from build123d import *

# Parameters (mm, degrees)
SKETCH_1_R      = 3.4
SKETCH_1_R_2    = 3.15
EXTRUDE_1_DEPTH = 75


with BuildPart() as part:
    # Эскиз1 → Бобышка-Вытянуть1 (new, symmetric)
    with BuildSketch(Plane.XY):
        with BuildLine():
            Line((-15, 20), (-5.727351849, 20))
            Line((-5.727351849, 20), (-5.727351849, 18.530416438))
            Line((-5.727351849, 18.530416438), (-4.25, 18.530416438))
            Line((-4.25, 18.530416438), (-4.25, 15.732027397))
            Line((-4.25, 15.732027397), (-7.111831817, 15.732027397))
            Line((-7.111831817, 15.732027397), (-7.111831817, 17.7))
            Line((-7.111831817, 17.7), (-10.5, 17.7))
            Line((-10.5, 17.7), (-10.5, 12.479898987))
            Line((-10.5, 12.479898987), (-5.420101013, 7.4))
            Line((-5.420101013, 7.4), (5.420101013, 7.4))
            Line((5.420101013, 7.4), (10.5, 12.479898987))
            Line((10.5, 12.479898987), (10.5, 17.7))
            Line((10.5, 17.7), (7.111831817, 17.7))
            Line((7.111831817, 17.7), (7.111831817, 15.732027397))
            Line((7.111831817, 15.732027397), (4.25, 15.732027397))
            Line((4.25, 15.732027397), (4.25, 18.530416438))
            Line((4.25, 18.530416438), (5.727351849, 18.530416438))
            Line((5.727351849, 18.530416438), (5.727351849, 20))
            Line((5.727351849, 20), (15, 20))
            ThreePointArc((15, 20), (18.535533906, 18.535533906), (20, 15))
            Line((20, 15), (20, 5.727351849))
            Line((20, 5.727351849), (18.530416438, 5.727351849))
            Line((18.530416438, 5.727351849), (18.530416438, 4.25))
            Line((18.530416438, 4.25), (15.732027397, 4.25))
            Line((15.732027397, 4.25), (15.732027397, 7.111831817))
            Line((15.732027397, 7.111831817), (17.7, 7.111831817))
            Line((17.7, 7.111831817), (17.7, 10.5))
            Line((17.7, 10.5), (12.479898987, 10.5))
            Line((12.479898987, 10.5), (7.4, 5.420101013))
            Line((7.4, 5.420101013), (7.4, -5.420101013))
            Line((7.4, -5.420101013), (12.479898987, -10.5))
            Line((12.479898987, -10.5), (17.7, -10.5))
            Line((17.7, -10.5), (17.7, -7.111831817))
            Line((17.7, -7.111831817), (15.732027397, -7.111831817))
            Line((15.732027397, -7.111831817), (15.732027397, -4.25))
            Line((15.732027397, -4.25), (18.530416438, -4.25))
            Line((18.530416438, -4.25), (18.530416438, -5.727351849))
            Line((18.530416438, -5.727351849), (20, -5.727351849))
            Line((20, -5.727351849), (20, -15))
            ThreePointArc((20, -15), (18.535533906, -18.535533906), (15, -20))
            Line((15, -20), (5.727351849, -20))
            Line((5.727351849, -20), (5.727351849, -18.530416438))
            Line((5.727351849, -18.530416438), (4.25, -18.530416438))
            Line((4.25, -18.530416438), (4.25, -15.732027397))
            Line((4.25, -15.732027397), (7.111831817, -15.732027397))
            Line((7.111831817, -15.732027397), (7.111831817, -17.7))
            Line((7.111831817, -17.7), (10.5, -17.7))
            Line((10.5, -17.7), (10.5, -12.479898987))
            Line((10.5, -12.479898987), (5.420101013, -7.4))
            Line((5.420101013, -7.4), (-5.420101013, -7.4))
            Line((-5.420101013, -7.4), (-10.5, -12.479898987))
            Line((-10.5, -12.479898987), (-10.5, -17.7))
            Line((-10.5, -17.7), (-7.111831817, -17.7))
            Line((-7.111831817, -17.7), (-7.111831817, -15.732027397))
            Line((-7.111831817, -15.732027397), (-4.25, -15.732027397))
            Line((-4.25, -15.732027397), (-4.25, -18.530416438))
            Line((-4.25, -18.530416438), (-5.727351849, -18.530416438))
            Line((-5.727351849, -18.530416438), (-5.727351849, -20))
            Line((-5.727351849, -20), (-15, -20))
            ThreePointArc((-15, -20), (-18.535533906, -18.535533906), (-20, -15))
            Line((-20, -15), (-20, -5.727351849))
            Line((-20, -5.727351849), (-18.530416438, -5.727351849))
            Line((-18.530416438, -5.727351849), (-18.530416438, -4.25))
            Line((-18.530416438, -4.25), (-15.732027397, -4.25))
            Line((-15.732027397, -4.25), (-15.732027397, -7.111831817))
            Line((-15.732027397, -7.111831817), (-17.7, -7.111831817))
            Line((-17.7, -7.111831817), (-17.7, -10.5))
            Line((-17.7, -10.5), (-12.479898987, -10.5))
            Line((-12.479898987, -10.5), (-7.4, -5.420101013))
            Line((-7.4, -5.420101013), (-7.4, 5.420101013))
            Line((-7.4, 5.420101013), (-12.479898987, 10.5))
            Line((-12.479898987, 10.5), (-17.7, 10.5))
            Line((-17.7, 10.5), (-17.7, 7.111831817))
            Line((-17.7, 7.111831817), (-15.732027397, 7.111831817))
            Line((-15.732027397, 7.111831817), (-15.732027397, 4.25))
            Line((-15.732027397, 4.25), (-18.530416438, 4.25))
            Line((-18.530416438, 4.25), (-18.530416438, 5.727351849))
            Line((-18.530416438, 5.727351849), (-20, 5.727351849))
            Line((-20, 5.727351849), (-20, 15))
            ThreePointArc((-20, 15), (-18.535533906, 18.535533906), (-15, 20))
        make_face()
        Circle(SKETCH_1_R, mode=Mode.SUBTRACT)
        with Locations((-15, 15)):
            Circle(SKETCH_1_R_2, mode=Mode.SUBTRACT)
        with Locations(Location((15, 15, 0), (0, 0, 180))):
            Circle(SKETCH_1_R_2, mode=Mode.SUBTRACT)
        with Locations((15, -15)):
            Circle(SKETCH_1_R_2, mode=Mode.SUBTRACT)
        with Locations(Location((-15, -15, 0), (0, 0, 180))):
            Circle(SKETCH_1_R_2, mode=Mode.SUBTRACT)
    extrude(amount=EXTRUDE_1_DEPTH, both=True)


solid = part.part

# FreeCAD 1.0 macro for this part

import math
import FreeCAD as App
import Part
import Sketcher

V = App.Vector

doc = App.newDocument("Part")
params = doc.addObject("Spreadsheet::Sheet", "Params")
for row, (alias, value) in enumerate([
    ("sketch1_radius", "5 mm"),
    ("sketch1_diameter", "6.3 mm"),
    ("sketch1_diameter2", "6.8 mm"),
    ("pad1_length", "150 mm"),
], start=1):
    params.set(f"A{row}", alias)
    params.set(f"B{row}", "=" + value)
    params.setAlias(f"B{row}", alias)

body = doc.addObject("PartDesign::Body", "Body")

# Sketch on XY plane
sketch1 = doc.addObject("Sketcher::SketchObject", "Sketch")
body.addObject(sketch1)
sketch1.AttachmentSupport = (doc.XY_Plane, [""])
sketch1.MapMode = "FlatFace"
sketch1.addGeometry([
    Part.LineSegment(V(-5.727352, 20, 0), V(-15, 20, 0)),  # 0
    Part.ArcOfCircle(Part.Circle(V(-15, 15, 0), V(0, 0, 1), 5), math.radians(90), math.radians(180)),  # 1
    Part.LineSegment(V(-20, 15, 0), V(-20, 5.727352, 0)),  # 2
    Part.LineSegment(V(-20, 5.727352, 0), V(-18.530416, 5.727352, 0)),  # 3
    Part.LineSegment(V(-18.530416, 5.727352, 0), V(-18.530416, 4.25, 0)),  # 4
    Part.LineSegment(V(-18.530416, 4.25, 0), V(-15.732027, 4.25, 0)),  # 5
    Part.LineSegment(V(-15.732027, 4.25, 0), V(-15.732027, 7.111832, 0)),  # 6
    Part.LineSegment(V(-15.732027, 7.111832, 0), V(-17.7, 7.111832, 0)),  # 7
    Part.LineSegment(V(-17.7, 7.111832, 0), V(-17.7, 10.5, 0)),  # 8
    Part.LineSegment(V(-17.7, 10.5, 0), V(-12.479899, 10.5, 0)),  # 9
    Part.LineSegment(V(-12.479899, 10.5, 0), V(-7.4, 5.420101, 0)),  # 10
    Part.LineSegment(V(-7.4, 5.420101, 0), V(-7.4, -5.420101, 0)),  # 11
    Part.LineSegment(V(-7.4, -5.420101, 0), V(-12.479899, -10.5, 0)),  # 12
    Part.LineSegment(V(-12.479899, -10.5, 0), V(-17.7, -10.5, 0)),  # 13
    Part.LineSegment(V(-17.7, -10.5, 0), V(-17.7, -7.111832, 0)),  # 14
    Part.LineSegment(V(-17.7, -7.111832, 0), V(-15.732027, -7.111832, 0)),  # 15
    Part.LineSegment(V(-15.732027, -7.111832, 0), V(-15.732027, -4.25, 0)),  # 16
    Part.LineSegment(V(-15.732027, -4.25, 0), V(-18.530416, -4.25, 0)),  # 17
    Part.LineSegment(V(-18.530416, -4.25, 0), V(-18.530416, -5.727352, 0)),  # 18
    Part.LineSegment(V(-18.530416, -5.727352, 0), V(-20, -5.727352, 0)),  # 19
    Part.LineSegment(V(-20, -5.727352, 0), V(-20, -15, 0)),  # 20
    Part.ArcOfCircle(Part.Circle(V(-15, -15, 0), V(0, 0, 1), 5), math.radians(180), math.radians(270)),  # 21
    Part.LineSegment(V(-15, -20, 0), V(-5.727352, -20, 0)),  # 22
    Part.LineSegment(V(-5.727352, -20, 0), V(-5.727352, -18.530416, 0)),  # 23
    Part.LineSegment(V(-5.727352, -18.530416, 0), V(-4.25, -18.530416, 0)),  # 24
    Part.LineSegment(V(-4.25, -18.530416, 0), V(-4.25, -15.732027, 0)),  # 25
    Part.LineSegment(V(-4.25, -15.732027, 0), V(-7.111832, -15.732027, 0)),  # 26
    Part.LineSegment(V(-7.111832, -15.732027, 0), V(-7.111832, -17.7, 0)),  # 27
    Part.LineSegment(V(-7.111832, -17.7, 0), V(-10.5, -17.7, 0)),  # 28
    Part.LineSegment(V(-10.5, -17.7, 0), V(-10.5, -12.479899, 0)),  # 29
    Part.LineSegment(V(-10.5, -12.479899, 0), V(-5.420101, -7.4, 0)),  # 30
    Part.LineSegment(V(-5.420101, -7.4, 0), V(5.420101, -7.4, 0)),  # 31
    Part.LineSegment(V(5.420101, -7.4, 0), V(10.5, -12.479899, 0)),  # 32
    Part.LineSegment(V(10.5, -12.479899, 0), V(10.5, -17.7, 0)),  # 33
    Part.LineSegment(V(10.5, -17.7, 0), V(7.111832, -17.7, 0)),  # 34
    Part.LineSegment(V(7.111832, -17.7, 0), V(7.111832, -15.732027, 0)),  # 35
    Part.LineSegment(V(7.111832, -15.732027, 0), V(4.25, -15.732027, 0)),  # 36
    Part.LineSegment(V(4.25, -15.732027, 0), V(4.25, -18.530416, 0)),  # 37
    Part.LineSegment(V(4.25, -18.530416, 0), V(5.727352, -18.530416, 0)),  # 38
    Part.LineSegment(V(5.727352, -18.530416, 0), V(5.727352, -20, 0)),  # 39
    Part.LineSegment(V(5.727352, -20, 0), V(15, -20, 0)),  # 40
    Part.ArcOfCircle(Part.Circle(V(15, -15, 0), V(0, 0, 1), 5), math.radians(-90), math.radians(0)),  # 41
    Part.LineSegment(V(20, -15, 0), V(20, -5.727352, 0)),  # 42
    Part.LineSegment(V(20, -5.727352, 0), V(18.530416, -5.727352, 0)),  # 43
    Part.LineSegment(V(18.530416, -5.727352, 0), V(18.530416, -4.25, 0)),  # 44
    Part.LineSegment(V(18.530416, -4.25, 0), V(15.732027, -4.25, 0)),  # 45
    Part.LineSegment(V(15.732027, -4.25, 0), V(15.732027, -7.111832, 0)),  # 46
    Part.LineSegment(V(15.732027, -7.111832, 0), V(17.7, -7.111832, 0)),  # 47
    Part.LineSegment(V(17.7, -7.111832, 0), V(17.7, -10.5, 0)),  # 48
    Part.LineSegment(V(17.7, -10.5, 0), V(12.479899, -10.5, 0)),  # 49
    Part.LineSegment(V(12.479899, -10.5, 0), V(7.4, -5.420101, 0)),  # 50
    Part.LineSegment(V(7.4, -5.420101, 0), V(7.4, 5.420101, 0)),  # 51
    Part.LineSegment(V(7.4, 5.420101, 0), V(12.479899, 10.5, 0)),  # 52
    Part.LineSegment(V(12.479899, 10.5, 0), V(17.7, 10.5, 0)),  # 53
    Part.LineSegment(V(17.7, 10.5, 0), V(17.7, 7.111832, 0)),  # 54
    Part.LineSegment(V(17.7, 7.111832, 0), V(15.732027, 7.111832, 0)),  # 55
    Part.LineSegment(V(15.732027, 7.111832, 0), V(15.732027, 4.25, 0)),  # 56
    Part.LineSegment(V(15.732027, 4.25, 0), V(18.530416, 4.25, 0)),  # 57
    Part.LineSegment(V(18.530416, 4.25, 0), V(18.530416, 5.727352, 0)),  # 58
    Part.LineSegment(V(18.530416, 5.727352, 0), V(20, 5.727352, 0)),  # 59
    Part.LineSegment(V(20, 5.727352, 0), V(20, 15, 0)),  # 60
    Part.ArcOfCircle(Part.Circle(V(15, 15, 0), V(0, 0, 1), 5), math.radians(0), math.radians(90)),  # 61
    Part.LineSegment(V(15, 20, 0), V(5.727352, 20, 0)),  # 62
    Part.LineSegment(V(5.727352, 20, 0), V(5.727352, 18.530416, 0)),  # 63
    Part.LineSegment(V(5.727352, 18.530416, 0), V(4.25, 18.530416, 0)),  # 64
    Part.LineSegment(V(4.25, 18.530416, 0), V(4.25, 15.732027, 0)),  # 65
    Part.LineSegment(V(4.25, 15.732027, 0), V(7.111832, 15.732027, 0)),  # 66
    Part.LineSegment(V(7.111832, 15.732027, 0), V(7.111832, 17.7, 0)),  # 67
    Part.LineSegment(V(7.111832, 17.7, 0), V(10.5, 17.7, 0)),  # 68
    Part.LineSegment(V(10.5, 17.7, 0), V(10.5, 12.479899, 0)),  # 69
    Part.LineSegment(V(10.5, 12.479899, 0), V(5.420101, 7.4, 0)),  # 70
    Part.LineSegment(V(5.420101, 7.4, 0), V(-5.420101, 7.4, 0)),  # 71
    Part.LineSegment(V(-5.420101, 7.4, 0), V(-10.5, 12.479899, 0)),  # 72
    Part.LineSegment(V(-10.5, 12.479899, 0), V(-10.5, 17.7, 0)),  # 73
    Part.LineSegment(V(-10.5, 17.7, 0), V(-7.111832, 17.7, 0)),  # 74
    Part.LineSegment(V(-7.111832, 17.7, 0), V(-7.111832, 15.732027, 0)),  # 75
    Part.LineSegment(V(-7.111832, 15.732027, 0), V(-4.25, 15.732027, 0)),  # 76
    Part.LineSegment(V(-4.25, 15.732027, 0), V(-4.25, 18.530416, 0)),  # 77
    Part.LineSegment(V(-4.25, 18.530416, 0), V(-5.727352, 18.530416, 0)),  # 78
    Part.LineSegment(V(-5.727352, 18.530416, 0), V(-5.727352, 20, 0)),  # 79
    Part.Circle(V(15, -15, 0), V(0, 0, 1), 3.15),  # 80
    Part.Circle(V(-15, -15, 0), V(0, 0, 1), 3.15),  # 81
    Part.Circle(V(15, 15, 0), V(0, 0, 1), 3.15),  # 82
    Part.Circle(V(0, 0, 0), V(0, 0, 1), 3.4),  # 83
    Part.Circle(V(-15, 15, 0), V(0, 0, 1), 3.15),  # 84
], False)
sketch1.addConstraint([
    Sketcher.Constraint("Tangent", 0, 2, 1, 1),
    Sketcher.Constraint("Tangent", 1, 2, 2, 1),
    Sketcher.Constraint("Coincident", 2, 2, 3, 1),
    Sketcher.Constraint("Coincident", 3, 2, 4, 1),
    Sketcher.Constraint("Coincident", 4, 2, 5, 1),
    Sketcher.Constraint("Coincident", 5, 2, 6, 1),
    Sketcher.Constraint("Coincident", 6, 2, 7, 1),
    Sketcher.Constraint("Coincident", 7, 2, 8, 1),
    Sketcher.Constraint("Coincident", 8, 2, 9, 1),
    Sketcher.Constraint("Coincident", 9, 2, 10, 1),
    Sketcher.Constraint("Coincident", 10, 2, 11, 1),
    Sketcher.Constraint("Coincident", 11, 2, 12, 1),
    Sketcher.Constraint("Coincident", 12, 2, 13, 1),
    Sketcher.Constraint("Coincident", 13, 2, 14, 1),
    Sketcher.Constraint("Coincident", 14, 2, 15, 1),
    Sketcher.Constraint("Coincident", 15, 2, 16, 1),
    Sketcher.Constraint("Coincident", 16, 2, 17, 1),
    Sketcher.Constraint("Coincident", 17, 2, 18, 1),
    Sketcher.Constraint("Coincident", 18, 2, 19, 1),
    Sketcher.Constraint("Coincident", 19, 2, 20, 1),
    Sketcher.Constraint("Tangent", 20, 2, 21, 1),
    Sketcher.Constraint("Tangent", 21, 2, 22, 1),
    Sketcher.Constraint("Coincident", 22, 2, 23, 1),
    Sketcher.Constraint("Coincident", 23, 2, 24, 1),
    Sketcher.Constraint("Coincident", 24, 2, 25, 1),
    Sketcher.Constraint("Coincident", 25, 2, 26, 1),
    Sketcher.Constraint("Coincident", 26, 2, 27, 1),
    Sketcher.Constraint("Coincident", 27, 2, 28, 1),
    Sketcher.Constraint("Coincident", 28, 2, 29, 1),
    Sketcher.Constraint("Coincident", 29, 2, 30, 1),
    Sketcher.Constraint("Coincident", 30, 2, 31, 1),
    Sketcher.Constraint("Coincident", 31, 2, 32, 1),
    Sketcher.Constraint("Coincident", 32, 2, 33, 1),
    Sketcher.Constraint("Coincident", 33, 2, 34, 1),
    Sketcher.Constraint("Coincident", 34, 2, 35, 1),
    Sketcher.Constraint("Coincident", 35, 2, 36, 1),
    Sketcher.Constraint("Coincident", 36, 2, 37, 1),
    Sketcher.Constraint("Coincident", 37, 2, 38, 1),
    Sketcher.Constraint("Coincident", 38, 2, 39, 1),
    Sketcher.Constraint("Coincident", 39, 2, 40, 1),
    Sketcher.Constraint("Tangent", 40, 2, 41, 1),
    Sketcher.Constraint("Tangent", 41, 2, 42, 1),
    Sketcher.Constraint("Coincident", 42, 2, 43, 1),
    Sketcher.Constraint("Coincident", 43, 2, 44, 1),
    Sketcher.Constraint("Coincident", 44, 2, 45, 1),
    Sketcher.Constraint("Coincident", 45, 2, 46, 1),
    Sketcher.Constraint("Coincident", 46, 2, 47, 1),
    Sketcher.Constraint("Coincident", 47, 2, 48, 1),
    Sketcher.Constraint("Coincident", 48, 2, 49, 1),
    Sketcher.Constraint("Coincident", 49, 2, 50, 1),
    Sketcher.Constraint("Coincident", 50, 2, 51, 1),
    Sketcher.Constraint("Coincident", 51, 2, 52, 1),
    Sketcher.Constraint("Coincident", 52, 2, 53, 1),
    Sketcher.Constraint("Coincident", 53, 2, 54, 1),
    Sketcher.Constraint("Coincident", 54, 2, 55, 1),
    Sketcher.Constraint("Coincident", 55, 2, 56, 1),
    Sketcher.Constraint("Coincident", 56, 2, 57, 1),
    Sketcher.Constraint("Coincident", 57, 2, 58, 1),
    Sketcher.Constraint("Coincident", 58, 2, 59, 1),
    Sketcher.Constraint("Coincident", 59, 2, 60, 1),
    Sketcher.Constraint("Tangent", 60, 2, 61, 1),
    Sketcher.Constraint("Tangent", 61, 2, 62, 1),
    Sketcher.Constraint("Coincident", 62, 2, 63, 1),
    Sketcher.Constraint("Coincident", 63, 2, 64, 1),
    Sketcher.Constraint("Coincident", 64, 2, 65, 1),
    Sketcher.Constraint("Coincident", 65, 2, 66, 1),
    Sketcher.Constraint("Coincident", 66, 2, 67, 1),
    Sketcher.Constraint("Coincident", 67, 2, 68, 1),
    Sketcher.Constraint("Coincident", 68, 2, 69, 1),
    Sketcher.Constraint("Coincident", 69, 2, 70, 1),
    Sketcher.Constraint("Coincident", 70, 2, 71, 1),
    Sketcher.Constraint("Coincident", 71, 2, 72, 1),
    Sketcher.Constraint("Coincident", 72, 2, 73, 1),
    Sketcher.Constraint("Coincident", 73, 2, 74, 1),
    Sketcher.Constraint("Coincident", 74, 2, 75, 1),
    Sketcher.Constraint("Coincident", 75, 2, 76, 1),
    Sketcher.Constraint("Coincident", 76, 2, 77, 1),
    Sketcher.Constraint("Coincident", 77, 2, 78, 1),
    Sketcher.Constraint("Coincident", 78, 2, 79, 1),
    Sketcher.Constraint("Coincident", 79, 2, 0, 1),
    Sketcher.Constraint("Horizontal", 0),
    Sketcher.Constraint("Vertical", 2),
    Sketcher.Constraint("Horizontal", 3),
    Sketcher.Constraint("Vertical", 4),
    Sketcher.Constraint("Horizontal", 5),
    Sketcher.Constraint("Vertical", 6),
    Sketcher.Constraint("Horizontal", 7),
    Sketcher.Constraint("Vertical", 8),
    Sketcher.Constraint("Horizontal", 9),
    Sketcher.Constraint("Vertical", 11),
    Sketcher.Constraint("Horizontal", 13),
    Sketcher.Constraint("Vertical", 14),
    Sketcher.Constraint("Horizontal", 15),
    Sketcher.Constraint("Vertical", 16),
    Sketcher.Constraint("Horizontal", 17),
    Sketcher.Constraint("Vertical", 18),
    Sketcher.Constraint("Horizontal", 19),
    Sketcher.Constraint("Vertical", 20),
    Sketcher.Constraint("Horizontal", 22),
    Sketcher.Constraint("Vertical", 23),
    Sketcher.Constraint("Horizontal", 24),
    Sketcher.Constraint("Vertical", 25),
    Sketcher.Constraint("Horizontal", 26),
    Sketcher.Constraint("Vertical", 27),
    Sketcher.Constraint("Horizontal", 28),
    Sketcher.Constraint("Vertical", 29),
    Sketcher.Constraint("Horizontal", 31),
    Sketcher.Constraint("Vertical", 33),
    Sketcher.Constraint("Horizontal", 34),
    Sketcher.Constraint("Vertical", 35),
    Sketcher.Constraint("Horizontal", 36),
    Sketcher.Constraint("Vertical", 37),
    Sketcher.Constraint("Horizontal", 38),
    Sketcher.Constraint("Vertical", 39),
    Sketcher.Constraint("Horizontal", 40),
    Sketcher.Constraint("Vertical", 42),
    Sketcher.Constraint("Horizontal", 43),
    Sketcher.Constraint("Vertical", 44),
    Sketcher.Constraint("Horizontal", 45),
    Sketcher.Constraint("Vertical", 46),
    Sketcher.Constraint("Horizontal", 47),
    Sketcher.Constraint("Vertical", 48),
    Sketcher.Constraint("Horizontal", 49),
    Sketcher.Constraint("Vertical", 51),
    Sketcher.Constraint("Horizontal", 53),
    Sketcher.Constraint("Vertical", 54),
    Sketcher.Constraint("Horizontal", 55),
    Sketcher.Constraint("Vertical", 56),
    Sketcher.Constraint("Horizontal", 57),
    Sketcher.Constraint("Vertical", 58),
    Sketcher.Constraint("Horizontal", 59),
    Sketcher.Constraint("Vertical", 60),
    Sketcher.Constraint("Horizontal", 62),
    Sketcher.Constraint("Vertical", 63),
    Sketcher.Constraint("Horizontal", 64),
    Sketcher.Constraint("Vertical", 65),
    Sketcher.Constraint("Horizontal", 66),
    Sketcher.Constraint("Vertical", 67),
    Sketcher.Constraint("Horizontal", 68),
    Sketcher.Constraint("Vertical", 69),
    Sketcher.Constraint("Horizontal", 71),
    Sketcher.Constraint("Vertical", 73),
    Sketcher.Constraint("Horizontal", 74),
    Sketcher.Constraint("Vertical", 75),
    Sketcher.Constraint("Horizontal", 76),
    Sketcher.Constraint("Vertical", 77),
    Sketcher.Constraint("Horizontal", 78),
    Sketcher.Constraint("Vertical", 79),
    Sketcher.Constraint("Coincident", 83, 3, -1, 1),
    Sketcher.Constraint("Coincident", 80, 3, 41, 3),
    Sketcher.Constraint("Coincident", 81, 3, 21, 3),
    Sketcher.Constraint("Coincident", 82, 3, 61, 3),
    Sketcher.Constraint("Coincident", 84, 3, 1, 3),
    Sketcher.Constraint("Equal", 1, 21),
    Sketcher.Constraint("Equal", 21, 41),
    Sketcher.Constraint("Equal", 41, 61),
    Sketcher.Constraint("Equal", 80, 81),
    Sketcher.Constraint("Equal", 81, 82),
    Sketcher.Constraint("Equal", 82, 84),
    Sketcher.Constraint("Symmetric", 1, 3, 41, 3, -1, 1),
    Sketcher.Constraint("Symmetric", 21, 3, 61, 3, -1, 1),
    Sketcher.Constraint("Symmetric", 3, 2, 43, 2, -1, 1),
    Sketcher.Constraint("Symmetric", 5, 2, 45, 2, -1, 1),
    Sketcher.Constraint("Symmetric", 7, 2, 47, 2, -1, 1),
    Sketcher.Constraint("Symmetric", 9, 2, 49, 2, -1, 1),
    Sketcher.Constraint("Symmetric", 10, 2, 50, 2, -1, 1),
    Sketcher.Constraint("Symmetric", 12, 2, 52, 2, -1, 1),
    Sketcher.Constraint("Symmetric", 14, 2, 54, 2, -1, 1),
    Sketcher.Constraint("Symmetric", 16, 2, 56, 2, -1, 1),
    Sketcher.Constraint("Symmetric", 18, 2, 58, 2, -1, 1),
    Sketcher.Constraint("Symmetric", 23, 2, 63, 2, -1, 1),
    Sketcher.Constraint("Symmetric", 25, 2, 65, 2, -1, 1),
    Sketcher.Constraint("Symmetric", 27, 2, 67, 2, -1, 1),
    Sketcher.Constraint("Symmetric", 29, 2, 69, 2, -1, 1),
    Sketcher.Constraint("Symmetric", 30, 2, 70, 2, -1, 1),
    Sketcher.Constraint("Symmetric", 32, 2, 72, 2, -1, 1),
    Sketcher.Constraint("Symmetric", 34, 2, 74, 2, -1, 1),
    Sketcher.Constraint("Symmetric", 36, 2, 76, 2, -1, 1),
    Sketcher.Constraint("Symmetric", 38, 2, 78, 2, -1, 1),
    Sketcher.Constraint("Symmetric", 21, 3, 41, 3, -2),
    Sketcher.Constraint("Symmetric", 29, 2, 32, 2, -2),
    Sketcher.Constraint("Symmetric", 27, 2, 34, 2, -2),
    Sketcher.Constraint("Symmetric", 25, 2, 36, 2, -2),
    Sketcher.Constraint("Symmetric", 23, 2, 38, 2, -2),
    Sketcher.Constraint("Symmetric", 18, 2, 43, 2, -2),
    Sketcher.Constraint("Symmetric", 16, 2, 45, 2, -2),
    Sketcher.Constraint("Symmetric", 14, 2, 47, 2, -2),
    Sketcher.Constraint("Symmetric", 12, 2, 49, 2, -2),
    Sketcher.Constraint("Perpendicular", 10, 12),
    Sketcher.Constraint("Parallel", 12, 30),
    Sketcher.Constraint("Perpendicular", 30, 32),
    Sketcher.Constraint("Perpendicular", 50, 52),
    Sketcher.Constraint("Perpendicular", 70, 72),
    Sketcher.Constraint("Horizontal", 11, 2, 50, 2),
    Sketcher.Constraint("Equal", 62, 2),
    Sketcher.Constraint("Equal", 78, 4),
    Sketcher.Constraint("Equal", 76, 6),
    Sketcher.Constraint("Equal", 74, 8),
    Sketcher.Constraint("Equal", 71, 11),
    Sketcher.Constraint("Equal", 59, 23),
    Sketcher.Constraint("Equal", 57, 25),
    Sketcher.Constraint("Equal", 55, 27),
    Sketcher.Constraint("Equal", 53, 29),
    Sketcher.Constraint("Equal", 12, 30),
    Sketcher.Constraint("Radius", 1, 5.0),
    Sketcher.Constraint("Diameter", 80, 6.3),
    Sketcher.Constraint("Diameter", 83, 6.8),
    Sketcher.Constraint("DistanceX", 1, 3, -1, 1, 15.0),
    Sketcher.Constraint("DistanceX", 7, 2, -1, 1, 17.7),
    Sketcher.Constraint("DistanceY", -1, 1, 8, 2, 10.5),
    Sketcher.Constraint("DistanceX", 10, 2, -1, 1, 7.4),
    Sketcher.Constraint("DistanceY", -1, 1, 4, 2, 4.25),
    Sketcher.Constraint("DistanceX", 9, 1, 9, 2, 5.220101),
    Sketcher.Constraint("DistanceX", 0, 2, 0, 1, 9.272648),
    Sketcher.Constraint("DistanceX", 5, 1, 5, 2, 2.798389),
    Sketcher.Constraint("DistanceX", 26, 2, 26, 1, 2.861832),
    Sketcher.Constraint("DistanceX", 3, 1, 3, 2, 1.469584),
])
sketch1.setExpression("Constraints[204]", "Params.sketch1_radius")
sketch1.setExpression("Constraints[205]", "Params.sketch1_diameter")
sketch1.setExpression("Constraints[206]", "Params.sketch1_diameter2")
pad1 = doc.addObject("PartDesign::Pad", "Pad")
body.addObject(pad1)
pad1.Profile = sketch1
pad1.setExpression("Length", "Params.pad1_length")
pad1.Midplane = True

doc.recompute()
